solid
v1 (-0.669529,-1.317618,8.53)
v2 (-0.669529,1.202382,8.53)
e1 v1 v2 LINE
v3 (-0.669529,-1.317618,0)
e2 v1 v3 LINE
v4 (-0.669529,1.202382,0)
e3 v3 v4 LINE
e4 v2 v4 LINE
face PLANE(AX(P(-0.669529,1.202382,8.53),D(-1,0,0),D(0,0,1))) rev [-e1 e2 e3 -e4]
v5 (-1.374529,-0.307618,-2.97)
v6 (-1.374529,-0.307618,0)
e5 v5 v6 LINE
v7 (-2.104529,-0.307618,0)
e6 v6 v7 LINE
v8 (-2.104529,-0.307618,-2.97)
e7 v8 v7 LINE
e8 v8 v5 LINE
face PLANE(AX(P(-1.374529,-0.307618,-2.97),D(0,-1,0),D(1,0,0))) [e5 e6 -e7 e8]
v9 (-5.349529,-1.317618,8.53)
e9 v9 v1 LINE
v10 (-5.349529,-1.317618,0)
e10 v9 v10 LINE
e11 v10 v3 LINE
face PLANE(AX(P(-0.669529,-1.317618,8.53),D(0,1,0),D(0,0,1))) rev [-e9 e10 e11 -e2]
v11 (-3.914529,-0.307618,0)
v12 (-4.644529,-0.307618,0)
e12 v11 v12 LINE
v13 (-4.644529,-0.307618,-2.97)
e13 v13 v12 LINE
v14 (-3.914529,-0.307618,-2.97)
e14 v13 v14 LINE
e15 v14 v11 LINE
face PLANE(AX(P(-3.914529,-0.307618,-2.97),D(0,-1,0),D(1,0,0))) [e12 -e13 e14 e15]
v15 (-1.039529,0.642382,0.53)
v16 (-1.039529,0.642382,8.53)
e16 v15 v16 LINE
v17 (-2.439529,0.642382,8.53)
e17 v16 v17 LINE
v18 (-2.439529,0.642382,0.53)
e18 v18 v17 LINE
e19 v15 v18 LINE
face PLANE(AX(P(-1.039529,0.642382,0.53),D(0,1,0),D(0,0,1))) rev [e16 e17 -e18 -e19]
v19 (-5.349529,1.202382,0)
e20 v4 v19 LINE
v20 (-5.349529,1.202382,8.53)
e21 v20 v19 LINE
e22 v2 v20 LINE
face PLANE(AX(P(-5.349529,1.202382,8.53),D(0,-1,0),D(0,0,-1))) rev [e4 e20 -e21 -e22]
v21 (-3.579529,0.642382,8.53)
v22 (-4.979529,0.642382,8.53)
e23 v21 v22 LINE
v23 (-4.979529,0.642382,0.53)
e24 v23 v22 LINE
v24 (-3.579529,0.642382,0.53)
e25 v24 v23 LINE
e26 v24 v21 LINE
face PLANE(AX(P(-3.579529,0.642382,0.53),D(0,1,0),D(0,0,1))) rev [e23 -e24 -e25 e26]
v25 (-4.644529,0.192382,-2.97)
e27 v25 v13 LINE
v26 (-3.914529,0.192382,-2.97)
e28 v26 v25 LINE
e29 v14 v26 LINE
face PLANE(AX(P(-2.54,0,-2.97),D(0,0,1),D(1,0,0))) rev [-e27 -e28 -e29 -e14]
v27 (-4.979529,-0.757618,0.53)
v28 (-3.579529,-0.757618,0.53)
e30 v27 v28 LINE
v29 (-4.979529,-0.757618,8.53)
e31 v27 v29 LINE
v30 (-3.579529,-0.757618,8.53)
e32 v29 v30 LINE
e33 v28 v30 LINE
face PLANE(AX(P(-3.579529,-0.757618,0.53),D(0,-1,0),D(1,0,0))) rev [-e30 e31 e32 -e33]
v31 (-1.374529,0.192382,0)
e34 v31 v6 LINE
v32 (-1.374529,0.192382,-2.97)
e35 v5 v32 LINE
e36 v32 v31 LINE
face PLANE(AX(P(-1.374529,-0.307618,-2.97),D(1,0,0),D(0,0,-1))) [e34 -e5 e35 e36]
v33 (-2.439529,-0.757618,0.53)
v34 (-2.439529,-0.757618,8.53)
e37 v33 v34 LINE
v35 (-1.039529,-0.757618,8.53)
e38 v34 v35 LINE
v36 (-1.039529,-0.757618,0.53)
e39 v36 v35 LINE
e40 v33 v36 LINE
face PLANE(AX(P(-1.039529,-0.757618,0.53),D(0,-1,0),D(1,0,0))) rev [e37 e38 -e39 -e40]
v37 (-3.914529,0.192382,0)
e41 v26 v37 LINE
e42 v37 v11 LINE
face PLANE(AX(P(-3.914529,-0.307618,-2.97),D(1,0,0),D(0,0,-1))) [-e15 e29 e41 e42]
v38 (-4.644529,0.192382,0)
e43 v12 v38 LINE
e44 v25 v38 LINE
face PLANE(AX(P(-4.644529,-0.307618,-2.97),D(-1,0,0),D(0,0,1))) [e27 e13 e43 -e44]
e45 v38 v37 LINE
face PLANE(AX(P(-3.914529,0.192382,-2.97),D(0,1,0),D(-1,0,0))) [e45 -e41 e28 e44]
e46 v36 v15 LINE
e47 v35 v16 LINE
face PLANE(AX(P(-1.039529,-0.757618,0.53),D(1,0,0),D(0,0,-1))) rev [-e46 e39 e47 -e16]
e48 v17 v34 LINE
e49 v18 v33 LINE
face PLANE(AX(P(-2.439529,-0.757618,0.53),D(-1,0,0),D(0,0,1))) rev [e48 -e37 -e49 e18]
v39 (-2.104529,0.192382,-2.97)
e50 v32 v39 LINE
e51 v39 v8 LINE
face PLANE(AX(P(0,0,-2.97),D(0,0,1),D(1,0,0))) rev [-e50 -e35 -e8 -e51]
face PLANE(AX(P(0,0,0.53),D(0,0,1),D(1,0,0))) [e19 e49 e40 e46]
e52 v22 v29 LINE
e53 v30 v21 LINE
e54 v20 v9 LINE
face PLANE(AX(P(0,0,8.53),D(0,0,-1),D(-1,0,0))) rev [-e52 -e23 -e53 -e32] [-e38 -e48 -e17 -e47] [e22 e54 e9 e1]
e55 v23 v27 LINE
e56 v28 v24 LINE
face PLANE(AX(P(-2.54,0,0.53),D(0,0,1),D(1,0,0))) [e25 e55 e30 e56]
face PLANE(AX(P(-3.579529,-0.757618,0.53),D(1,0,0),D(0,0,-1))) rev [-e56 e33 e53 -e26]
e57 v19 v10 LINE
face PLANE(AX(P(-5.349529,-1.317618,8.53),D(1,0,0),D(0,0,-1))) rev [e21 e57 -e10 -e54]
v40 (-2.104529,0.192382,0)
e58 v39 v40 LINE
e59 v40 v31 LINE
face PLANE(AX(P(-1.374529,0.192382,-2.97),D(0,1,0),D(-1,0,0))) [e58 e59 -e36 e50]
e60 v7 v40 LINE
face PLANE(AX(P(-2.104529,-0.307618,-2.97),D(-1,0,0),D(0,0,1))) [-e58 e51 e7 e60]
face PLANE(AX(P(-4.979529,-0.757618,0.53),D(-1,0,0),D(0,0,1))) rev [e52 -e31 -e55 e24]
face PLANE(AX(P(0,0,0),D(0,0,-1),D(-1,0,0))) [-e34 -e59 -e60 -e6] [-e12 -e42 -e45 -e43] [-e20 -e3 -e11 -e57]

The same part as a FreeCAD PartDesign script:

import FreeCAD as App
import Part
import Sketcher
from FreeCAD import Vector
Q = App.Units.Quantity

doc = App.newDocument("Part")
body = doc.addObject("PartDesign::Body", "Body")

sketch1 = doc.addObject("Sketcher::SketchObject", "Sketch")
body.addObject(sketch1)
sketch1.AttachmentSupport = (doc.XY_Plane, [""])
sketch1.MapMode = "FlatFace"
sketch1.addGeometry(Part.LineSegment(Vector(-5.3, 1.2, 0), Vector(-5.3, -1.3, 0)), False)
sketch1.addGeometry(Part.LineSegment(Vector(-5.3, -1.3, 0), Vector(-0.7, -1.3, 0)), False)
sketch1.addGeometry(Part.LineSegment(Vector(-0.7, -1.3, 0), Vector(-0.7, 1.2, 0)), False)
sketch1.addGeometry(Part.LineSegment(Vector(-0.7, 1.2, 0), Vector(-5.3, 1.2, 0)), False)
sketch1.addConstraint(Sketcher.Constraint("Coincident", 0, 2, 1, 1))
sketch1.addConstraint(Sketcher.Constraint("Coincident", 1, 2, 2, 1))
sketch1.addConstraint(Sketcher.Constraint("Coincident", 2, 2, 3, 1))
sketch1.addConstraint(Sketcher.Constraint("Coincident", 3, 2, 0, 1))
sketch1.addConstraint(Sketcher.Constraint("Vertical", 0))
sketch1.addConstraint(Sketcher.Constraint("Horizontal", 1))
sketch1.addConstraint(Sketcher.Constraint("Vertical", 2))
sketch1.addConstraint(Sketcher.Constraint("Horizontal", 3))
sketch1.addConstraint(Sketcher.Constraint("DistanceX", 1, 1, 1, 2, Q("4.68 mm")))
sketch1.addConstraint(Sketcher.Constraint("DistanceY", 0, 2, 0, 1, Q("2.52 mm")))
sketch1.addConstraint(Sketcher.Constraint("DistanceX", 0, 2, -1, 1, Q("5.349529 mm")))
sketch1.addConstraint(Sketcher.Constraint("DistanceY", 0, 2, -1, 1, Q("1.317618 mm")))
pad1 = doc.addObject("PartDesign::Pad", "Pad")
body.addObject(pad1)
pad1.Profile = sketch1
pad1.Length = 8.53

sketch2 = doc.addObject("Sketcher::SketchObject", "Sketch001")
body.addObject(sketch2)
sketch2.AttachmentSupport = (doc.XY_Plane, [""])
sketch2.MapMode = "FlatFace"
sketch2.AttachmentOffset = App.Placement(Vector(0, 0, 8.53), App.Rotation())
sketch2.addGeometry(Part.LineSegment(Vector(-2.4, 0.6, 0), Vector(-2.4, -0.8, 0)), False)
sketch2.addGeometry(Part.LineSegment(Vector(-2.4, -0.8, 0), Vector(-1, -0.8, 0)), False)
sketch2.addGeometry(Part.LineSegment(Vector(-1, -0.8, 0), Vector(-1, 0.6, 0)), False)
sketch2.addGeometry(Part.LineSegment(Vector(-1, 0.6, 0), Vector(-2.4, 0.6, 0)), False)
sketch2.addConstraint(Sketcher.Constraint("Coincident", 0, 2, 1, 1))
sketch2.addConstraint(Sketcher.Constraint("Coincident", 1, 2, 2, 1))
sketch2.addConstraint(Sketcher.Constraint("Coincident", 2, 2, 3, 1))
sketch2.addConstraint(Sketcher.Constraint("Coincident", 3, 2, 0, 1))
sketch2.addConstraint(Sketcher.Constraint("Vertical", 0))
sketch2.addConstraint(Sketcher.Constraint("Horizontal", 1))
sketch2.addConstraint(Sketcher.Constraint("Vertical", 2))
sketch2.addConstraint(Sketcher.Constraint("Horizontal", 3))
sketch2.addConstraint(Sketcher.Constraint("Equal", 3, 0))
sketch2.addConstraint(Sketcher.Constraint("DistanceX", 1, 1, 1, 2, Q("1.4 mm")))
sketch2.addConstraint(Sketcher.Constraint("DistanceX", 0, 2, -1, 1, Q("2.439529 mm")))
sketch2.addConstraint(Sketcher.Constraint("DistanceY", 0, 2, -1, 1, Q("0.757618 mm")))
pocket1 = doc.addObject("PartDesign::Pocket", "Pocket")
body.addObject(pocket1)
pocket1.Profile = sketch2
pocket1.Length = 8
doc.recompute()

linearpattern = doc.addObject("PartDesign::LinearPattern", "LinearPattern")
body.addObject(linearpattern)
linearpattern.Originals = [pocket1]
linearpattern.Direction = (doc.X_Axis, [""])
linearpattern.Mode = "offset"
linearpattern.Offset = 2.54
linearpattern.Occurrences = 2
linearpattern.Reversed = True
body.Tip = linearpattern

sketch3 = doc.addObject("Sketcher::SketchObject", "Sketch002")
body.addObject(sketch3)
sketch3.AttachmentSupport = (doc.XY_Plane, [""])
sketch3.MapMode = "FlatFace"
sketch3.AttachmentOffset = App.Placement(Vector(0, 0, 0.53), App.Rotation())
sketch3.addGeometry(Part.LineSegment(Vector(-2.1, 0.2, 0), Vector(-2.1, -0.3, 0)), False)
sketch3.addGeometry(Part.LineSegment(Vector(-2.1, -0.3, 0), Vector(-1.4, -0.3, 0)), False)
sketch3.addGeometry(Part.LineSegment(Vector(-1.4, -0.3, 0), Vector(-1.4, 0.2, 0)), False)
sketch3.addGeometry(Part.LineSegment(Vector(-1.4, 0.2, 0), Vector(-2.1, 0.2, 0)), False)
sketch3.addConstraint(Sketcher.Constraint("Coincident", 0, 2, 1, 1))
sketch3.addConstraint(Sketcher.Constraint("Coincident", 1, 2, 2, 1))
sketch3.addConstraint(Sketcher.Constraint("Coincident", 2, 2, 3, 1))
sketch3.addConstraint(Sketcher.Constraint("Coincident", 3, 2, 0, 1))
sketch3.addConstraint(Sketcher.Constraint("Vertical", 0))
sketch3.addConstraint(Sketcher.Constraint("Horizontal", 1))
sketch3.addConstraint(Sketcher.Constraint("Vertical", 2))
sketch3.addConstraint(Sketcher.Constraint("Horizontal", 3))
sketch3.addConstraint(Sketcher.Constraint("DistanceY", 0, 2, 0, 1, Q("0.5 mm")))
sketch3.addConstraint(Sketcher.Constraint("DistanceX", 1, 1, 1, 2, Q("0.73 mm")))
sketch3.addConstraint(Sketcher.Constraint("DistanceX", 0, 2, -1, 1, Q("2.104529 mm")))
sketch3.addConstraint(Sketcher.Constraint("DistanceY", 0, 2, -1, 1, Q("0.307618 mm")))
pad2 = doc.addObject("PartDesign::Pad", "Pad001")
body.addObject(pad2)
pad2.Profile = sketch3
pad2.Length = 3.5
pad2.Reversed = True
doc.recompute()

linearpattern2 = doc.addObject("PartDesign::LinearPattern", "LinearPattern001")
body.addObject(linearpattern2)
linearpattern2.Originals = [pad2]
linearpattern2.Direction = (doc.X_Axis, [""])
linearpattern2.Mode = "offset"
linearpattern2.Offset = 2.54
linearpattern2.Occurrences = 2
linearpattern2.Reversed = True
body.Tip = linearpattern2

doc.recompute()
